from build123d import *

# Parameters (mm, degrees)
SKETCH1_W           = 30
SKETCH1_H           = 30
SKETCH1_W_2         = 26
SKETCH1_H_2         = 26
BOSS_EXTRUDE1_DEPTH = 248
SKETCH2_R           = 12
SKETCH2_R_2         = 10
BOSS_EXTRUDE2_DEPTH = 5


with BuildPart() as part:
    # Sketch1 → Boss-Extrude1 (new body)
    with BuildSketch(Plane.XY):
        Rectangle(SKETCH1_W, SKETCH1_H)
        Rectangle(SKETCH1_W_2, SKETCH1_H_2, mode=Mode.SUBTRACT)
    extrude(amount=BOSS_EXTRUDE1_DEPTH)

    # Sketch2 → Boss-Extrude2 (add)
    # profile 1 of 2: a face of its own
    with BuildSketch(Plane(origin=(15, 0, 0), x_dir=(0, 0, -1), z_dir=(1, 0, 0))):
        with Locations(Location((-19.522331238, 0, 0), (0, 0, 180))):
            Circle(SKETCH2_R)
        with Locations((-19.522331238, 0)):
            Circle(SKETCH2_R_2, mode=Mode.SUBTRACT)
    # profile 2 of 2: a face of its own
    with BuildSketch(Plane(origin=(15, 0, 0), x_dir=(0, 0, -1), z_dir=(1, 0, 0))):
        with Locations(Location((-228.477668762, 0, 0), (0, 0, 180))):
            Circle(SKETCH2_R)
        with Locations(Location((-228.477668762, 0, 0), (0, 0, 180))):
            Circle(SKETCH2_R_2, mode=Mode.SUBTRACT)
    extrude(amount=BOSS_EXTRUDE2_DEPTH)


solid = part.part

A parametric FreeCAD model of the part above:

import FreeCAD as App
import Part
import Sketcher
from FreeCAD import Vector

doc = App.newDocument("Part")
body = doc.addObject("PartDesign::Body", "Body")

sketch1 = body.newObject("Sketcher::SketchObject", "Sketch")
sketch1.AttachmentSupport = (doc.getObject("XY_Plane"), [""])
sketch1.MapMode = "FlatFace"
sketch1.addGeometry([
    Part.LineSegment(Vector(-15, 15, 0), Vector(-15, -15, 0)),
    Part.LineSegment(Vector(-15, -15, 0), Vector(15, -15, 0)),
    Part.LineSegment(Vector(15, -15, 0), Vector(15, 15, 0)),
    Part.LineSegment(Vector(15, 15, 0), Vector(-15, 15, 0)),
    Part.LineSegment(Vector(13, -13, 0), Vector(-13, -13, 0)),
    Part.LineSegment(Vector(-13, -13, 0), Vector(-13, 13, 0)),
    Part.LineSegment(Vector(-13, 13, 0), Vector(13, 13, 0)),
    Part.LineSegment(Vector(13, 13, 0), Vector(13, -13, 0)),
], False)
sketch1.addConstraint([
    Sketcher.Constraint("Coincident", 0, 2, 1, 1),
    Sketcher.Constraint("Coincident", 1, 2, 2, 1),
    Sketcher.Constraint("Coincident", 2, 2, 3, 1),
    Sketcher.Constraint("Coincident", 3, 2, 0, 1),
    Sketcher.Constraint("Coincident", 4, 2, 5, 1),
    Sketcher.Constraint("Coincident", 5, 2, 6, 1),
    Sketcher.Constraint("Coincident", 6, 2, 7, 1),
    Sketcher.Constraint("Coincident", 7, 2, 4, 1),
    Sketcher.Constraint("Vertical", 0),
    Sketcher.Constraint("Horizontal", 1),
    Sketcher.Constraint("Vertical", 2),
    Sketcher.Constraint("Horizontal", 3),
    Sketcher.Constraint("Horizontal", 4),
    Sketcher.Constraint("Vertical", 5),
    Sketcher.Constraint("Horizontal", 6),
    Sketcher.Constraint("Vertical", 7),
    Sketcher.Constraint("Symmetric", 0, 2, 2, 2, -1, 1),
    Sketcher.Constraint("Symmetric", 4, 2, 6, 2, -1, 1),
    Sketcher.Constraint("Equal", 3, 0),
    Sketcher.Constraint("Equal", 6, 5),
    Sketcher.Constraint("DistanceX", 1, 1, 1, 2, 30.0),
    Sketcher.Constraint("DistanceX", 4, 2, 4, 1, 26.0),
])
pad1 = body.newObject("PartDesign::Pad", "Pad")
pad1.Profile = sketch1
pad1.Length = 248

sketch2 = body.newObject("Sketcher::SketchObject", "Sketch001")
sketch2.AttachmentSupport = (doc.getObject("YZ_Plane"), [""])
sketch2.MapMode = "FlatFace"
sketch2.AttachmentOffset = App.Placement(Vector(0, 0, 15), App.Rotation())
sketch2.addGeometry([
    Part.Circle(Vector(0, 20, 0), Vector(0, 0, 1), 12),
    Part.Circle(Vector(0, 20, 0), Vector(0, 0, 1), 10),
    Part.Circle(Vector(0, 228, 0), Vector(0, 0, 1), 12),
    Part.Circle(Vector(0, 228, 0), Vector(0, 0, 1), 10),
], False)
sketch2.addConstraint([
    Sketcher.Constraint("Coincident", 1, 3, 0, 3),
    Sketcher.Constraint("Coincident", 3, 3, 2, 3),
    Sketcher.Constraint("Equal", 0, 2),
    Sketcher.Constraint("Equal", 1, 3),
    Sketcher.Constraint("PointOnObject", 0, 3, -2),
    Sketcher.Constraint("PointOnObject", 2, 3, -2),
    Sketcher.Constraint("Diameter", 0, 24.0),
    Sketcher.Constraint("Diameter", 1, 20.0),
    Sketcher.Constraint("DistanceY", -1, 1, 0, 3, 19.522331),
    Sketcher.Constraint("DistanceY", -1, 1, 2, 3, 228.477669),
])
pad2 = body.newObject("PartDesign::Pad", "Pad001")
pad2.Profile = sketch2
pad2.Length = 5

doc.recompute()
